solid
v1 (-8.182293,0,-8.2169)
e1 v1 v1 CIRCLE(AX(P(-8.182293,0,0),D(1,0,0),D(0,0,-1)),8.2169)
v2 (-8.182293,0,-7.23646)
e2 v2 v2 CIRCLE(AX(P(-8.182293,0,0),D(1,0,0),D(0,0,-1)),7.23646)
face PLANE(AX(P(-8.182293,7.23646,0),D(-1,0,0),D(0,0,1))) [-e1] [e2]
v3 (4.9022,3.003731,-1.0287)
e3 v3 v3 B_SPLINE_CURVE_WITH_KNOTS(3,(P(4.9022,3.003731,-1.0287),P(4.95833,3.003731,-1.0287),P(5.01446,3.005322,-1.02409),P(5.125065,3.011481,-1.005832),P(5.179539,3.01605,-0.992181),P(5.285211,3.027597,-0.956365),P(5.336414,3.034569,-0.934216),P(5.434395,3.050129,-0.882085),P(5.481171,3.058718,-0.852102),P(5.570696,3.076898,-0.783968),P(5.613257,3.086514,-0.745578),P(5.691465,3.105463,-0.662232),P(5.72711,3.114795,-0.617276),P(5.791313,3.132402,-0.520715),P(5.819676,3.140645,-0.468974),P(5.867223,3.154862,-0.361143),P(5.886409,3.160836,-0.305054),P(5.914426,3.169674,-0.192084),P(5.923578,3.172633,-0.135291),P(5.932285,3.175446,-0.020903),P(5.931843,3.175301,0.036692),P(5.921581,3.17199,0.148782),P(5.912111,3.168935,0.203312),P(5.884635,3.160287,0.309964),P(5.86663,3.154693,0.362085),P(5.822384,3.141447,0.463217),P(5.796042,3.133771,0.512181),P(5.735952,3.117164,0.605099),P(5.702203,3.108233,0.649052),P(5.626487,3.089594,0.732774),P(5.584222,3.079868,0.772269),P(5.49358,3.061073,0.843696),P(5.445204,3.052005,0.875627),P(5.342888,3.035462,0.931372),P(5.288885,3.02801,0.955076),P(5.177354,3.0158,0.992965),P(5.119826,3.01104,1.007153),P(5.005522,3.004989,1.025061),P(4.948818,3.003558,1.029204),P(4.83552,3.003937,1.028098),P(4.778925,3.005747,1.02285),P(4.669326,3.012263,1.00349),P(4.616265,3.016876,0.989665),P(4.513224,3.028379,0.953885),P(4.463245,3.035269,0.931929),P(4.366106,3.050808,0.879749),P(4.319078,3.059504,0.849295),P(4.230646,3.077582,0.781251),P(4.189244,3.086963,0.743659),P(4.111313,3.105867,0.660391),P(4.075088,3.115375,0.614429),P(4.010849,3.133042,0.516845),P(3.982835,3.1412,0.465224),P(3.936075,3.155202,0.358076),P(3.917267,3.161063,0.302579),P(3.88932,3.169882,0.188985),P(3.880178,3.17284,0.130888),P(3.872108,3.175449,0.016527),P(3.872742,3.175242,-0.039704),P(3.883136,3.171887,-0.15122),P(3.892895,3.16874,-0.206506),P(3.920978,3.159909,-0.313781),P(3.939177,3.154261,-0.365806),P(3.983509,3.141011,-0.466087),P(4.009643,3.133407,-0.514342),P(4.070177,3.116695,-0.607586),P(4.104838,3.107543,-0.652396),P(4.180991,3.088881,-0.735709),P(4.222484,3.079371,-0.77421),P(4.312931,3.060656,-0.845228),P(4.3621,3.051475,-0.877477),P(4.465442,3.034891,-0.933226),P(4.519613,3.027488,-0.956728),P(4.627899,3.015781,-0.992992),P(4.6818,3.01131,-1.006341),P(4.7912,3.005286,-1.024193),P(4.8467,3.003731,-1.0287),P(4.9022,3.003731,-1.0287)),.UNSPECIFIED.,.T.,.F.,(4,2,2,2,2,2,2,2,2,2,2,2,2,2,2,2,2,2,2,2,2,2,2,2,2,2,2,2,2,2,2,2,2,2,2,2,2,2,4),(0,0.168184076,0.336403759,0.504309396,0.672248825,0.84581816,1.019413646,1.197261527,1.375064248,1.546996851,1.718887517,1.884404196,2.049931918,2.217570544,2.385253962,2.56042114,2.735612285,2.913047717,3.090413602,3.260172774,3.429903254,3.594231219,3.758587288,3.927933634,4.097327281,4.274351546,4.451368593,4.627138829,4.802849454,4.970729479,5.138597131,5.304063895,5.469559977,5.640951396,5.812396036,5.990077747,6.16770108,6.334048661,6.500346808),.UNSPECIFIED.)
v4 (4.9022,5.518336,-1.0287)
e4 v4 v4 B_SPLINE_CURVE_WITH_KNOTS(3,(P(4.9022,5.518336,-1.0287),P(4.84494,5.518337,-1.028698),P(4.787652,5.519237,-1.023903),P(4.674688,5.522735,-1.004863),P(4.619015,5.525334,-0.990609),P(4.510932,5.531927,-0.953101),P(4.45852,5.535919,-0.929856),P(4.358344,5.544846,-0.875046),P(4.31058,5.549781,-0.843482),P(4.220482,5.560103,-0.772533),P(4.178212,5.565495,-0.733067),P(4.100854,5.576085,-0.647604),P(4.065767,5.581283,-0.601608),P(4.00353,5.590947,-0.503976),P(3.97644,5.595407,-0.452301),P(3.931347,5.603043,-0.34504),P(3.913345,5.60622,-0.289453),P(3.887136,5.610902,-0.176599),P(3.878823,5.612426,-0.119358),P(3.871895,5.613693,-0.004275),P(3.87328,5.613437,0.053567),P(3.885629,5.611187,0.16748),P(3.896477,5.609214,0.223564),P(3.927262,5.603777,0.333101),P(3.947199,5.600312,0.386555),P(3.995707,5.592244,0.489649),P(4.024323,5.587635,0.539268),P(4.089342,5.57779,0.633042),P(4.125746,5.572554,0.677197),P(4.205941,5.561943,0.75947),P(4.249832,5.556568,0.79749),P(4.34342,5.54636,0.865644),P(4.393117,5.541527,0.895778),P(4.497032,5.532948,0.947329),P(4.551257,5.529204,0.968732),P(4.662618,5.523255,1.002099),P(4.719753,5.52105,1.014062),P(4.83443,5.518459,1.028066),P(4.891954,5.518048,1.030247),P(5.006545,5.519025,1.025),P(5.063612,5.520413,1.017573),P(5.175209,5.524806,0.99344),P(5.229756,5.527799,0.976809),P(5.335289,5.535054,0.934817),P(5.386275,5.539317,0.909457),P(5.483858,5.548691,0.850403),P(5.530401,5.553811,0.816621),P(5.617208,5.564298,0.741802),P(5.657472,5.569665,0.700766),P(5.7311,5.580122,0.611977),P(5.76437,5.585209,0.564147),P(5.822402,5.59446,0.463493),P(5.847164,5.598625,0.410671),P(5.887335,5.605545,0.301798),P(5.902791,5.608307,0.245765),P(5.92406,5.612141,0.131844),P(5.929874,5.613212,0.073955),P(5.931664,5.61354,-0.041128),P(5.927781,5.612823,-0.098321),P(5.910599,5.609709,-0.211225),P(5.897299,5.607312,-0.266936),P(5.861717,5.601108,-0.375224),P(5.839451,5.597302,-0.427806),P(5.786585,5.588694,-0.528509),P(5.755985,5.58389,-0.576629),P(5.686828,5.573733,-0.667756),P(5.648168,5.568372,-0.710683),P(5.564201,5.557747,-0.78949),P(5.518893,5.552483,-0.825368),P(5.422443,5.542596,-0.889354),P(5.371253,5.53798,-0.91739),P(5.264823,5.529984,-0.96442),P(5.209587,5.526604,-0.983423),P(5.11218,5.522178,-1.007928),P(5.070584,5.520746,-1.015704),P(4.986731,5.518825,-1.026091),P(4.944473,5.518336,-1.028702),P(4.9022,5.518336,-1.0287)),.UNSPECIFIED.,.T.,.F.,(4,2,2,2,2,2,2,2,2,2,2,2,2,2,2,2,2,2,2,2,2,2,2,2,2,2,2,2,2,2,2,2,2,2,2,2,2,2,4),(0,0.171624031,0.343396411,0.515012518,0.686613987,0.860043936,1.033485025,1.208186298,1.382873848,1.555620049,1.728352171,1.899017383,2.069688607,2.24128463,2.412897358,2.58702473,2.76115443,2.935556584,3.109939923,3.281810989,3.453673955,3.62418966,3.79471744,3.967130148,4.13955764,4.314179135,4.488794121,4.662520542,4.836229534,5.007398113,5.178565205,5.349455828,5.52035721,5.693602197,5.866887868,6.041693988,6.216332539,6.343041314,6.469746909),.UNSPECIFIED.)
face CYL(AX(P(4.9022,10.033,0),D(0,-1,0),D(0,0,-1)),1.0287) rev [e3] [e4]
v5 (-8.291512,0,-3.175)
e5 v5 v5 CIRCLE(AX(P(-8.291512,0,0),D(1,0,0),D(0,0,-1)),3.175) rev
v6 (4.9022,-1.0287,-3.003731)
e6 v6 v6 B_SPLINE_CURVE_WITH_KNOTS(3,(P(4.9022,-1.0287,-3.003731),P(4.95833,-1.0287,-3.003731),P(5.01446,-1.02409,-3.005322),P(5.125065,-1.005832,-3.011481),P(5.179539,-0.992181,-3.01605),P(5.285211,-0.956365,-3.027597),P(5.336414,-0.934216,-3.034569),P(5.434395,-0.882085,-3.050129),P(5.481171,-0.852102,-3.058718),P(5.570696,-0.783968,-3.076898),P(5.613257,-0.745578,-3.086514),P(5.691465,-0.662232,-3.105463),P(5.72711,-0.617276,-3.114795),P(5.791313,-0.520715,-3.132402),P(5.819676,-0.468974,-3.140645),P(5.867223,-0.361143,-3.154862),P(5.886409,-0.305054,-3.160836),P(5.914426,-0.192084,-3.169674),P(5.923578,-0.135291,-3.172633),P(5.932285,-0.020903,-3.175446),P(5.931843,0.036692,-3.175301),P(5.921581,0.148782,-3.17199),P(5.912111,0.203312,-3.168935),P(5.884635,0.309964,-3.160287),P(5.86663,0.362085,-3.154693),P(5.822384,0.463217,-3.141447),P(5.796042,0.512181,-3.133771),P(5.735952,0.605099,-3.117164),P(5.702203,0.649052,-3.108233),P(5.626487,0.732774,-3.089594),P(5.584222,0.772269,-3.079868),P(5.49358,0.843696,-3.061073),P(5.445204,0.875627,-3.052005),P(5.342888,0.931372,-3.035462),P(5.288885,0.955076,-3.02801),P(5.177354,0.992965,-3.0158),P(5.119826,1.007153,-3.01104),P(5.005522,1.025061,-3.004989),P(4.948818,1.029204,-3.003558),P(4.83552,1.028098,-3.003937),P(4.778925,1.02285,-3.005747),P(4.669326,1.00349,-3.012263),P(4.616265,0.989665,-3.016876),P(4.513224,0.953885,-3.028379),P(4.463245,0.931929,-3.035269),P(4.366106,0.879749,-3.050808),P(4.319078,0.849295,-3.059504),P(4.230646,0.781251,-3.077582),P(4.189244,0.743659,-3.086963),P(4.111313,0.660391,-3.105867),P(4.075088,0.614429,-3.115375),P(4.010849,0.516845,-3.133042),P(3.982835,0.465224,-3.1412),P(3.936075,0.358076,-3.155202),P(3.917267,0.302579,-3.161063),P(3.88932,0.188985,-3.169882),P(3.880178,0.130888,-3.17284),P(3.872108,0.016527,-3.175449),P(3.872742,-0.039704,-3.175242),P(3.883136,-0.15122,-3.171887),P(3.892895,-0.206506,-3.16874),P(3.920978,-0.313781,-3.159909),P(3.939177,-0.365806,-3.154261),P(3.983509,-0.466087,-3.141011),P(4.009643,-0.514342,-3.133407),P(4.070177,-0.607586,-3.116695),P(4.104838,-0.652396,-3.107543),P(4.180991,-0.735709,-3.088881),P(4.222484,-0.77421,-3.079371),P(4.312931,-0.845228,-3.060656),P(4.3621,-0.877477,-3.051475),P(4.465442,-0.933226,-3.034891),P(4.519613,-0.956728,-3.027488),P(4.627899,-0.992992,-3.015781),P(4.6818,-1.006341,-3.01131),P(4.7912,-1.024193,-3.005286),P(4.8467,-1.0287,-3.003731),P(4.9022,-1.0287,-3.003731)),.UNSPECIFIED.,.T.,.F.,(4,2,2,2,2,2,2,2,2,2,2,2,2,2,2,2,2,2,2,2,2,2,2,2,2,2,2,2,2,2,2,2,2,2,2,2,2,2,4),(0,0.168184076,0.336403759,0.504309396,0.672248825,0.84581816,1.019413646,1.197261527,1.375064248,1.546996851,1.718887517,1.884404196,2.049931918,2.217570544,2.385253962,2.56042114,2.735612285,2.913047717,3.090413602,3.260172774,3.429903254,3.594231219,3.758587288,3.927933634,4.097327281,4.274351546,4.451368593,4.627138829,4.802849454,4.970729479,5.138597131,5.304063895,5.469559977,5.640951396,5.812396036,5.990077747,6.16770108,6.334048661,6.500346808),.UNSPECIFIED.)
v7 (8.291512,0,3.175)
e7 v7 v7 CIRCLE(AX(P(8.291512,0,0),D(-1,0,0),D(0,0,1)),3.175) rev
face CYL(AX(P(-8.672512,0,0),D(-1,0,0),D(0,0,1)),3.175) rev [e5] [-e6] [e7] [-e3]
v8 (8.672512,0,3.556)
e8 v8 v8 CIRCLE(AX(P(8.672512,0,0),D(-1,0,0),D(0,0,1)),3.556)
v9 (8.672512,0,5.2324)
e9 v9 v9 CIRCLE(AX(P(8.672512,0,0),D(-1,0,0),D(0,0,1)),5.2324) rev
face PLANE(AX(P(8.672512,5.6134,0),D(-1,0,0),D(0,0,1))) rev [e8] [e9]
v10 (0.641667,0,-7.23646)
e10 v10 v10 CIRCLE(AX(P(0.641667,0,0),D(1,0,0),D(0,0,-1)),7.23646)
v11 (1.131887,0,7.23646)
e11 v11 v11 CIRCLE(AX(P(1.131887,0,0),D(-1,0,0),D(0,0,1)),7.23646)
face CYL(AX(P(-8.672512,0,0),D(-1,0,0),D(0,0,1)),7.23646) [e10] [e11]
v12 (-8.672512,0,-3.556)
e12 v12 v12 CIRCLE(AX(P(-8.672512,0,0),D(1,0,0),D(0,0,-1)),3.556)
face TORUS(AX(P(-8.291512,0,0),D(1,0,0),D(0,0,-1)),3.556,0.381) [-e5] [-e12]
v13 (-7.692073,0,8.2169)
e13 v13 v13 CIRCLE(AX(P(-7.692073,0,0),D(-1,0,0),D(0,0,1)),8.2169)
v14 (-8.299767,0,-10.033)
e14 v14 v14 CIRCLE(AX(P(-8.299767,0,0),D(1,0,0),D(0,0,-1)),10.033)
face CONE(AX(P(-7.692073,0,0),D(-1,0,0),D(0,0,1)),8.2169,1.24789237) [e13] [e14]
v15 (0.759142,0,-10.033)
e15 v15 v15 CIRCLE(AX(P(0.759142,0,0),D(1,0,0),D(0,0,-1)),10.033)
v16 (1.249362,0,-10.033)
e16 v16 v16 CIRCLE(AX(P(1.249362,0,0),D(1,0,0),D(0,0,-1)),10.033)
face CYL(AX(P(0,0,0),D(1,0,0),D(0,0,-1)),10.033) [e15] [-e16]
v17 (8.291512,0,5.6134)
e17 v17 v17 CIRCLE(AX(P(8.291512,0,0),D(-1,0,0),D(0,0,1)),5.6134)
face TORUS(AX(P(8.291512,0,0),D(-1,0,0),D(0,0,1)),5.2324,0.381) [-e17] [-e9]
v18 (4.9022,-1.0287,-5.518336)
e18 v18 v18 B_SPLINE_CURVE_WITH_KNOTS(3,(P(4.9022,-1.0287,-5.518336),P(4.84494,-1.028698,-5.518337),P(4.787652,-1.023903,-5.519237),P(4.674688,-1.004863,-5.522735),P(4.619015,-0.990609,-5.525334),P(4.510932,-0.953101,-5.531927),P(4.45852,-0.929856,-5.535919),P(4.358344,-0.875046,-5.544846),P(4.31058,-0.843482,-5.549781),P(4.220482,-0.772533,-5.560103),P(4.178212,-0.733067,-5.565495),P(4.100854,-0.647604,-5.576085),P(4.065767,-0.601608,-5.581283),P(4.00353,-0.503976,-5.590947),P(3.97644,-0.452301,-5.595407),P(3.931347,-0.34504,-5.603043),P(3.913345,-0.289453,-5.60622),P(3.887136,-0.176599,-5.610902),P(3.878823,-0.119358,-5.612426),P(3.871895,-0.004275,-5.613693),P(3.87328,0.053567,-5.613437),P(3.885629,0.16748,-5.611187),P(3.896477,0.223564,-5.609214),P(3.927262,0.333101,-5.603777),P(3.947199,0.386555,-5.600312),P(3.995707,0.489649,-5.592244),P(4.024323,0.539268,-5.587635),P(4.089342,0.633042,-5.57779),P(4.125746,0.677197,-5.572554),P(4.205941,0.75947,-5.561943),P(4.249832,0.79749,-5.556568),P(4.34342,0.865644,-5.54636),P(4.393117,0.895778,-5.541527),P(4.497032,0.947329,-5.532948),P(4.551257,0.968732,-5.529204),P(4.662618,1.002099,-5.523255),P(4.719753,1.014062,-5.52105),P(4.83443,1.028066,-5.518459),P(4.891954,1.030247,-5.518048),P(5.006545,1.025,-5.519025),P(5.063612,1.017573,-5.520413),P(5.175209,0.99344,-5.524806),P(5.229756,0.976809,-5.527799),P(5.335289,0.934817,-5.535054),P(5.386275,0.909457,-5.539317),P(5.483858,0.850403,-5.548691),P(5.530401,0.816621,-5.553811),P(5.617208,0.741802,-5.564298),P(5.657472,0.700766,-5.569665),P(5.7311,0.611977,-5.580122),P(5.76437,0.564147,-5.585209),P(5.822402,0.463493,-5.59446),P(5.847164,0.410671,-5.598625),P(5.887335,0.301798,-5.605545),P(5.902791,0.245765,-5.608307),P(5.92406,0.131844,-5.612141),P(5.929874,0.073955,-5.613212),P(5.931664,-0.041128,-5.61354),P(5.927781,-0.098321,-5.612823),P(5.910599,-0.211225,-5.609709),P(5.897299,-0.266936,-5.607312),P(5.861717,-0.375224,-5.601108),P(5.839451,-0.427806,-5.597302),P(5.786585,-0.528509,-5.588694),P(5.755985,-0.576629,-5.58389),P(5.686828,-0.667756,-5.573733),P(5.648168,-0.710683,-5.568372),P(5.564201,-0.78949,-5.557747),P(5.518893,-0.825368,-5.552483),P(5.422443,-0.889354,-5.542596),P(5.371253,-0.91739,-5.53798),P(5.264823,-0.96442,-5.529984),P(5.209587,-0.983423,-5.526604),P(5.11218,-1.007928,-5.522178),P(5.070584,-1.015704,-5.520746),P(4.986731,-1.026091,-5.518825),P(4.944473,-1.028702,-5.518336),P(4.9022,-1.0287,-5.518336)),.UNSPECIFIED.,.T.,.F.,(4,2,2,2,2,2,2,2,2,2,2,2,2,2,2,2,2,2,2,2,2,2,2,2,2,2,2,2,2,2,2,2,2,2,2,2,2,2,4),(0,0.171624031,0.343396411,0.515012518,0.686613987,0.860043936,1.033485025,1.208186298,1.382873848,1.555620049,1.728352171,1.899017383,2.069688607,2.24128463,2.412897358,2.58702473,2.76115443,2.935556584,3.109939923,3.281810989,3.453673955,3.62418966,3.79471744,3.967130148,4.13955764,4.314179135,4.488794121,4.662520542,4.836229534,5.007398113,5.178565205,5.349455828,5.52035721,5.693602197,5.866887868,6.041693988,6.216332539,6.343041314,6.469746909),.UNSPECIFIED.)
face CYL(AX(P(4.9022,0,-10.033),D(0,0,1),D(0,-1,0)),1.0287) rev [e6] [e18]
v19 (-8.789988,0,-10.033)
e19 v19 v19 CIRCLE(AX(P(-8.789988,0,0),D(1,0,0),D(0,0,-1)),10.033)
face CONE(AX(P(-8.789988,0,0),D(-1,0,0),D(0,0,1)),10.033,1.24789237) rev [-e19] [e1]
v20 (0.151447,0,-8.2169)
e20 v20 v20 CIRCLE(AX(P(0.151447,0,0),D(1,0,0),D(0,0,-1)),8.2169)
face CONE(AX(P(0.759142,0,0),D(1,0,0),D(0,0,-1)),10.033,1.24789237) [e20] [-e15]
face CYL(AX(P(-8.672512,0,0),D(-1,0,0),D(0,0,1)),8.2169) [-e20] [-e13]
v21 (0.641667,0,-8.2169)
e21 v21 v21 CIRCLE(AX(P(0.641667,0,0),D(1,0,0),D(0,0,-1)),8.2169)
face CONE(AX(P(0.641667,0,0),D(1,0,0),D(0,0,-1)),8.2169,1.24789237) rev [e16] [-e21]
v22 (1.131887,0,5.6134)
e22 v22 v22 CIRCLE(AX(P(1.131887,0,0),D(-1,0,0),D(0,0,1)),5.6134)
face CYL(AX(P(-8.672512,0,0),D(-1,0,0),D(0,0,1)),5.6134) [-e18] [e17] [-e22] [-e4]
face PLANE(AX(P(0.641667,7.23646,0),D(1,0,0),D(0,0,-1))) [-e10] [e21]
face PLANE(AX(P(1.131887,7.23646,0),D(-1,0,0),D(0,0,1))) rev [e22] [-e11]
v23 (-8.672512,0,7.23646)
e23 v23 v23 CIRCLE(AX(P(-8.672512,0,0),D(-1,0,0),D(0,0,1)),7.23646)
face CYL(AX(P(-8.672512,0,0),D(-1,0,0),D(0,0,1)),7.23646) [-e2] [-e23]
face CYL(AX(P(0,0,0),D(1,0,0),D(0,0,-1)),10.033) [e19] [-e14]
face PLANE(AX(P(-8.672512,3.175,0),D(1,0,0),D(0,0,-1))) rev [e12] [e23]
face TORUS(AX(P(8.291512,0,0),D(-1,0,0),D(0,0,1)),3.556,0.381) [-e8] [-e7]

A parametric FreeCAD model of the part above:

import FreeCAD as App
import Part
import Sketcher
from FreeCAD import Vector
Q = App.Units.Quantity


def edges_at(feature, points):
    """Names of the edges that pass closest to the given points."""
    edges = feature.Shape.Edges
    near = lambda p: min(range(len(edges)), key=lambda i: edges[i].distToShape(Part.Vertex(*p))[0])
    return sorted({f"Edge{near(p) + 1}" for p in points})


def add_polygon(sketch, points):
    """Adds a closed chain of lines whose ends are joined by coincident constraints."""
    first, n = sketch.GeometryCount, len(points)
    for a, b in zip(points, points[1:] + points[:1]):
        sketch.addGeometry(Part.LineSegment(App.Vector(*a, 0), App.Vector(*b, 0)), False)
    for i in range(n):
        sketch.addConstraint(Sketcher.Constraint("Coincident", first + i, 2, first + (i + 1) % n, 1))

doc = App.newDocument("Part")
body = doc.addObject("PartDesign::Body", "Body")

sketch1 = body.newObject("Sketcher::SketchObject", "Sketch")
sketch1.AttachmentSupport = (doc.getObject("XY_Plane"), [""])
sketch1.MapMode = "FlatFace"
add_polygon(sketch1, [(-8.7, 3.2), (8.7, 3.2), (8.7, 5.6), (1.1, 5.6), (1.1, 7.2), (0.2, 7.2), (0.2, 8.2), (-7.7, 8.2), (-7.7, 7.2), (-8.7, 7.2)])
sketch1.addConstraint([
    Sketcher.Constraint("Horizontal", 0),
    Sketcher.Constraint("Vertical", 1),
    Sketcher.Constraint("Horizontal", 2),
    Sketcher.Constraint("Vertical", 3),
    Sketcher.Constraint("Horizontal", 4),
    Sketcher.Constraint("Vertical", 5),
    Sketcher.Constraint("Horizontal", 6),
    Sketcher.Constraint("Vertical", 7),
    Sketcher.Constraint("Horizontal", 8),
    Sketcher.Constraint("Vertical", 9),
    Sketcher.Constraint("Horizontal", 4, 2, 7, 2),
    Sketcher.Constraint("Equal", 4, 8),
    Sketcher.Constraint("Equal", 8, 5),
    Sketcher.Constraint("DistanceX", 2, 2, 2, 1, Q("0.296875 in")),
    Sketcher.Constraint("DistanceY", 1, 1, 1, 2, Q("0.096 in")),
    Sketcher.Constraint("DistanceX", 4, 2, 4, 1, Q("0.0386 in")),
    Sketcher.Constraint("DistanceX", 6, 2, 6, 1, Q("0.3088 in")),
    Sketcher.Constraint("DistanceY", 3, 1, 3, 2, Q("0.0639 in")),
    Sketcher.Constraint("DistanceY", -1, 1, 0, 2, Q("0.125 in")),
    Sketcher.Constraint("DistanceX", -1, 1, 0, 2, 8.672512),
])
revolution = body.newObject("PartDesign::Revolution", "Revolution")
revolution.Profile = sketch1
revolution.ReferenceAxis = (sketch1, ["H_Axis"])
revolution.Angle = 360

sketch2 = body.newObject("Sketcher::SketchObject", "Sketch001")
sketch2.AttachmentSupport = (doc.getObject("XY_Plane"), [""])
sketch2.MapMode = "FlatFace"
add_polygon(sketch2, [(-8.18, 8.22), (-8.18, 7.24), (-7.69, 7.24), (-7.69, 8.22), (-8.3, 10.03), (-8.79, 10.03)])
add_polygon(sketch2, [(0.15, 7.24), (0.64, 7.24), (0.64, 8.22), (1.25, 10.03), (0.76, 10.03), (0.15, 8.22)])
sketch2.addConstraint([
    Sketcher.Constraint("Vertical", 0),
    Sketcher.Constraint("Horizontal", 1),
    Sketcher.Constraint("Vertical", 2),
    Sketcher.Constraint("Horizontal", 4),
    Sketcher.Constraint("Horizontal", 6),
    Sketcher.Constraint("Vertical", 7),
    Sketcher.Constraint("Horizontal", 9),
    Sketcher.Constraint("Vertical", 11),
    Sketcher.Constraint("Parallel", 3, 5),
    Sketcher.Constraint("Parallel", 8, 10),
    Sketcher.Constraint("Horizontal", 2, 2, 5, 2),
    Sketcher.Constraint("Horizontal", 1, 2, 6, 2),
    Sketcher.Constraint("Horizontal", 5, 2, 7, 2),
    Sketcher.Constraint("Horizontal", 4, 2, 8, 2),
    Sketcher.Constraint("Horizontal", 7, 2, 10, 2),
    Sketcher.Constraint("Equal", 4, 6),
    Sketcher.Constraint("Equal", 5, 8),
    Sketcher.Constraint("DistanceX", 1, 1, 1, 2, Q("0.0193 in")),
    Sketcher.Constraint("DistanceY", 0, 2, 0, 1, Q("0.0386 in")),
    Sketcher.Constraint("DistanceY", -1, 1, 3, 2, Q("0.395 in")),
    Sketcher.Constraint("DistanceY", -1, 1, 0, 2, Q("0.2849 in")),
    Sketcher.Constraint("DistanceX", 1, 2, 6, 2, Q("0.3281 in")),
    Sketcher.Constraint("DistanceX", 3, 2, 8, 2, 9.54913),
    Sketcher.Constraint("DistanceX", 0, 2, -1, 1, 8.182293),
])
revolution2 = body.newObject("PartDesign::Revolution", "Revolution001")
revolution2.Profile = sketch2
revolution2.ReferenceAxis = (sketch2, ["H_Axis"])
revolution2.Angle = 360

sketch3 = body.newObject("Sketcher::SketchObject", "Sketch002")
sketch3.AttachmentSupport = (doc.getObject("XZ_Plane"), [""])
sketch3.MapMode = "FlatFace"
sketch3.addGeometry(Part.Circle(Vector(4.9, 0, 0), Vector(0, 0, 1), 1), False)
sketch3.addConstraint([
    Sketcher.Constraint("PointOnObject", 0, 3, -1),
    Sketcher.Constraint("Diameter", 0, Q("0.081 in")),
    Sketcher.Constraint("DistanceX", -1, 1, 0, 3, Q("0.193 in")),
])
pocket1 = body.newObject("PartDesign::Pocket", "Pocket")
pocket1.Profile = sketch3
pocket1.Type = "ThroughAll"
doc.recompute()

polarpattern = body.newObject("PartDesign::PolarPattern", "PolarPattern")
polarpattern.Originals = [pocket1]
polarpattern.Axis = (doc.getObject("X_Axis"), [""])
polarpattern.Angle = 90
polarpattern.Occurrences = 2
polarpattern.Reversed = True
body.Tip = polarpattern
doc.recompute()

fillet = body.newObject("PartDesign::Fillet", "Fillet")
fillet.Base = (polarpattern, edges_at(polarpattern, [(-8.673, -3.175, 0), (8.673, -3.175, 0), (8.673, -5.613, 0)]))
fillet.Radius = Q("0.015 in")

doc.recompute()
